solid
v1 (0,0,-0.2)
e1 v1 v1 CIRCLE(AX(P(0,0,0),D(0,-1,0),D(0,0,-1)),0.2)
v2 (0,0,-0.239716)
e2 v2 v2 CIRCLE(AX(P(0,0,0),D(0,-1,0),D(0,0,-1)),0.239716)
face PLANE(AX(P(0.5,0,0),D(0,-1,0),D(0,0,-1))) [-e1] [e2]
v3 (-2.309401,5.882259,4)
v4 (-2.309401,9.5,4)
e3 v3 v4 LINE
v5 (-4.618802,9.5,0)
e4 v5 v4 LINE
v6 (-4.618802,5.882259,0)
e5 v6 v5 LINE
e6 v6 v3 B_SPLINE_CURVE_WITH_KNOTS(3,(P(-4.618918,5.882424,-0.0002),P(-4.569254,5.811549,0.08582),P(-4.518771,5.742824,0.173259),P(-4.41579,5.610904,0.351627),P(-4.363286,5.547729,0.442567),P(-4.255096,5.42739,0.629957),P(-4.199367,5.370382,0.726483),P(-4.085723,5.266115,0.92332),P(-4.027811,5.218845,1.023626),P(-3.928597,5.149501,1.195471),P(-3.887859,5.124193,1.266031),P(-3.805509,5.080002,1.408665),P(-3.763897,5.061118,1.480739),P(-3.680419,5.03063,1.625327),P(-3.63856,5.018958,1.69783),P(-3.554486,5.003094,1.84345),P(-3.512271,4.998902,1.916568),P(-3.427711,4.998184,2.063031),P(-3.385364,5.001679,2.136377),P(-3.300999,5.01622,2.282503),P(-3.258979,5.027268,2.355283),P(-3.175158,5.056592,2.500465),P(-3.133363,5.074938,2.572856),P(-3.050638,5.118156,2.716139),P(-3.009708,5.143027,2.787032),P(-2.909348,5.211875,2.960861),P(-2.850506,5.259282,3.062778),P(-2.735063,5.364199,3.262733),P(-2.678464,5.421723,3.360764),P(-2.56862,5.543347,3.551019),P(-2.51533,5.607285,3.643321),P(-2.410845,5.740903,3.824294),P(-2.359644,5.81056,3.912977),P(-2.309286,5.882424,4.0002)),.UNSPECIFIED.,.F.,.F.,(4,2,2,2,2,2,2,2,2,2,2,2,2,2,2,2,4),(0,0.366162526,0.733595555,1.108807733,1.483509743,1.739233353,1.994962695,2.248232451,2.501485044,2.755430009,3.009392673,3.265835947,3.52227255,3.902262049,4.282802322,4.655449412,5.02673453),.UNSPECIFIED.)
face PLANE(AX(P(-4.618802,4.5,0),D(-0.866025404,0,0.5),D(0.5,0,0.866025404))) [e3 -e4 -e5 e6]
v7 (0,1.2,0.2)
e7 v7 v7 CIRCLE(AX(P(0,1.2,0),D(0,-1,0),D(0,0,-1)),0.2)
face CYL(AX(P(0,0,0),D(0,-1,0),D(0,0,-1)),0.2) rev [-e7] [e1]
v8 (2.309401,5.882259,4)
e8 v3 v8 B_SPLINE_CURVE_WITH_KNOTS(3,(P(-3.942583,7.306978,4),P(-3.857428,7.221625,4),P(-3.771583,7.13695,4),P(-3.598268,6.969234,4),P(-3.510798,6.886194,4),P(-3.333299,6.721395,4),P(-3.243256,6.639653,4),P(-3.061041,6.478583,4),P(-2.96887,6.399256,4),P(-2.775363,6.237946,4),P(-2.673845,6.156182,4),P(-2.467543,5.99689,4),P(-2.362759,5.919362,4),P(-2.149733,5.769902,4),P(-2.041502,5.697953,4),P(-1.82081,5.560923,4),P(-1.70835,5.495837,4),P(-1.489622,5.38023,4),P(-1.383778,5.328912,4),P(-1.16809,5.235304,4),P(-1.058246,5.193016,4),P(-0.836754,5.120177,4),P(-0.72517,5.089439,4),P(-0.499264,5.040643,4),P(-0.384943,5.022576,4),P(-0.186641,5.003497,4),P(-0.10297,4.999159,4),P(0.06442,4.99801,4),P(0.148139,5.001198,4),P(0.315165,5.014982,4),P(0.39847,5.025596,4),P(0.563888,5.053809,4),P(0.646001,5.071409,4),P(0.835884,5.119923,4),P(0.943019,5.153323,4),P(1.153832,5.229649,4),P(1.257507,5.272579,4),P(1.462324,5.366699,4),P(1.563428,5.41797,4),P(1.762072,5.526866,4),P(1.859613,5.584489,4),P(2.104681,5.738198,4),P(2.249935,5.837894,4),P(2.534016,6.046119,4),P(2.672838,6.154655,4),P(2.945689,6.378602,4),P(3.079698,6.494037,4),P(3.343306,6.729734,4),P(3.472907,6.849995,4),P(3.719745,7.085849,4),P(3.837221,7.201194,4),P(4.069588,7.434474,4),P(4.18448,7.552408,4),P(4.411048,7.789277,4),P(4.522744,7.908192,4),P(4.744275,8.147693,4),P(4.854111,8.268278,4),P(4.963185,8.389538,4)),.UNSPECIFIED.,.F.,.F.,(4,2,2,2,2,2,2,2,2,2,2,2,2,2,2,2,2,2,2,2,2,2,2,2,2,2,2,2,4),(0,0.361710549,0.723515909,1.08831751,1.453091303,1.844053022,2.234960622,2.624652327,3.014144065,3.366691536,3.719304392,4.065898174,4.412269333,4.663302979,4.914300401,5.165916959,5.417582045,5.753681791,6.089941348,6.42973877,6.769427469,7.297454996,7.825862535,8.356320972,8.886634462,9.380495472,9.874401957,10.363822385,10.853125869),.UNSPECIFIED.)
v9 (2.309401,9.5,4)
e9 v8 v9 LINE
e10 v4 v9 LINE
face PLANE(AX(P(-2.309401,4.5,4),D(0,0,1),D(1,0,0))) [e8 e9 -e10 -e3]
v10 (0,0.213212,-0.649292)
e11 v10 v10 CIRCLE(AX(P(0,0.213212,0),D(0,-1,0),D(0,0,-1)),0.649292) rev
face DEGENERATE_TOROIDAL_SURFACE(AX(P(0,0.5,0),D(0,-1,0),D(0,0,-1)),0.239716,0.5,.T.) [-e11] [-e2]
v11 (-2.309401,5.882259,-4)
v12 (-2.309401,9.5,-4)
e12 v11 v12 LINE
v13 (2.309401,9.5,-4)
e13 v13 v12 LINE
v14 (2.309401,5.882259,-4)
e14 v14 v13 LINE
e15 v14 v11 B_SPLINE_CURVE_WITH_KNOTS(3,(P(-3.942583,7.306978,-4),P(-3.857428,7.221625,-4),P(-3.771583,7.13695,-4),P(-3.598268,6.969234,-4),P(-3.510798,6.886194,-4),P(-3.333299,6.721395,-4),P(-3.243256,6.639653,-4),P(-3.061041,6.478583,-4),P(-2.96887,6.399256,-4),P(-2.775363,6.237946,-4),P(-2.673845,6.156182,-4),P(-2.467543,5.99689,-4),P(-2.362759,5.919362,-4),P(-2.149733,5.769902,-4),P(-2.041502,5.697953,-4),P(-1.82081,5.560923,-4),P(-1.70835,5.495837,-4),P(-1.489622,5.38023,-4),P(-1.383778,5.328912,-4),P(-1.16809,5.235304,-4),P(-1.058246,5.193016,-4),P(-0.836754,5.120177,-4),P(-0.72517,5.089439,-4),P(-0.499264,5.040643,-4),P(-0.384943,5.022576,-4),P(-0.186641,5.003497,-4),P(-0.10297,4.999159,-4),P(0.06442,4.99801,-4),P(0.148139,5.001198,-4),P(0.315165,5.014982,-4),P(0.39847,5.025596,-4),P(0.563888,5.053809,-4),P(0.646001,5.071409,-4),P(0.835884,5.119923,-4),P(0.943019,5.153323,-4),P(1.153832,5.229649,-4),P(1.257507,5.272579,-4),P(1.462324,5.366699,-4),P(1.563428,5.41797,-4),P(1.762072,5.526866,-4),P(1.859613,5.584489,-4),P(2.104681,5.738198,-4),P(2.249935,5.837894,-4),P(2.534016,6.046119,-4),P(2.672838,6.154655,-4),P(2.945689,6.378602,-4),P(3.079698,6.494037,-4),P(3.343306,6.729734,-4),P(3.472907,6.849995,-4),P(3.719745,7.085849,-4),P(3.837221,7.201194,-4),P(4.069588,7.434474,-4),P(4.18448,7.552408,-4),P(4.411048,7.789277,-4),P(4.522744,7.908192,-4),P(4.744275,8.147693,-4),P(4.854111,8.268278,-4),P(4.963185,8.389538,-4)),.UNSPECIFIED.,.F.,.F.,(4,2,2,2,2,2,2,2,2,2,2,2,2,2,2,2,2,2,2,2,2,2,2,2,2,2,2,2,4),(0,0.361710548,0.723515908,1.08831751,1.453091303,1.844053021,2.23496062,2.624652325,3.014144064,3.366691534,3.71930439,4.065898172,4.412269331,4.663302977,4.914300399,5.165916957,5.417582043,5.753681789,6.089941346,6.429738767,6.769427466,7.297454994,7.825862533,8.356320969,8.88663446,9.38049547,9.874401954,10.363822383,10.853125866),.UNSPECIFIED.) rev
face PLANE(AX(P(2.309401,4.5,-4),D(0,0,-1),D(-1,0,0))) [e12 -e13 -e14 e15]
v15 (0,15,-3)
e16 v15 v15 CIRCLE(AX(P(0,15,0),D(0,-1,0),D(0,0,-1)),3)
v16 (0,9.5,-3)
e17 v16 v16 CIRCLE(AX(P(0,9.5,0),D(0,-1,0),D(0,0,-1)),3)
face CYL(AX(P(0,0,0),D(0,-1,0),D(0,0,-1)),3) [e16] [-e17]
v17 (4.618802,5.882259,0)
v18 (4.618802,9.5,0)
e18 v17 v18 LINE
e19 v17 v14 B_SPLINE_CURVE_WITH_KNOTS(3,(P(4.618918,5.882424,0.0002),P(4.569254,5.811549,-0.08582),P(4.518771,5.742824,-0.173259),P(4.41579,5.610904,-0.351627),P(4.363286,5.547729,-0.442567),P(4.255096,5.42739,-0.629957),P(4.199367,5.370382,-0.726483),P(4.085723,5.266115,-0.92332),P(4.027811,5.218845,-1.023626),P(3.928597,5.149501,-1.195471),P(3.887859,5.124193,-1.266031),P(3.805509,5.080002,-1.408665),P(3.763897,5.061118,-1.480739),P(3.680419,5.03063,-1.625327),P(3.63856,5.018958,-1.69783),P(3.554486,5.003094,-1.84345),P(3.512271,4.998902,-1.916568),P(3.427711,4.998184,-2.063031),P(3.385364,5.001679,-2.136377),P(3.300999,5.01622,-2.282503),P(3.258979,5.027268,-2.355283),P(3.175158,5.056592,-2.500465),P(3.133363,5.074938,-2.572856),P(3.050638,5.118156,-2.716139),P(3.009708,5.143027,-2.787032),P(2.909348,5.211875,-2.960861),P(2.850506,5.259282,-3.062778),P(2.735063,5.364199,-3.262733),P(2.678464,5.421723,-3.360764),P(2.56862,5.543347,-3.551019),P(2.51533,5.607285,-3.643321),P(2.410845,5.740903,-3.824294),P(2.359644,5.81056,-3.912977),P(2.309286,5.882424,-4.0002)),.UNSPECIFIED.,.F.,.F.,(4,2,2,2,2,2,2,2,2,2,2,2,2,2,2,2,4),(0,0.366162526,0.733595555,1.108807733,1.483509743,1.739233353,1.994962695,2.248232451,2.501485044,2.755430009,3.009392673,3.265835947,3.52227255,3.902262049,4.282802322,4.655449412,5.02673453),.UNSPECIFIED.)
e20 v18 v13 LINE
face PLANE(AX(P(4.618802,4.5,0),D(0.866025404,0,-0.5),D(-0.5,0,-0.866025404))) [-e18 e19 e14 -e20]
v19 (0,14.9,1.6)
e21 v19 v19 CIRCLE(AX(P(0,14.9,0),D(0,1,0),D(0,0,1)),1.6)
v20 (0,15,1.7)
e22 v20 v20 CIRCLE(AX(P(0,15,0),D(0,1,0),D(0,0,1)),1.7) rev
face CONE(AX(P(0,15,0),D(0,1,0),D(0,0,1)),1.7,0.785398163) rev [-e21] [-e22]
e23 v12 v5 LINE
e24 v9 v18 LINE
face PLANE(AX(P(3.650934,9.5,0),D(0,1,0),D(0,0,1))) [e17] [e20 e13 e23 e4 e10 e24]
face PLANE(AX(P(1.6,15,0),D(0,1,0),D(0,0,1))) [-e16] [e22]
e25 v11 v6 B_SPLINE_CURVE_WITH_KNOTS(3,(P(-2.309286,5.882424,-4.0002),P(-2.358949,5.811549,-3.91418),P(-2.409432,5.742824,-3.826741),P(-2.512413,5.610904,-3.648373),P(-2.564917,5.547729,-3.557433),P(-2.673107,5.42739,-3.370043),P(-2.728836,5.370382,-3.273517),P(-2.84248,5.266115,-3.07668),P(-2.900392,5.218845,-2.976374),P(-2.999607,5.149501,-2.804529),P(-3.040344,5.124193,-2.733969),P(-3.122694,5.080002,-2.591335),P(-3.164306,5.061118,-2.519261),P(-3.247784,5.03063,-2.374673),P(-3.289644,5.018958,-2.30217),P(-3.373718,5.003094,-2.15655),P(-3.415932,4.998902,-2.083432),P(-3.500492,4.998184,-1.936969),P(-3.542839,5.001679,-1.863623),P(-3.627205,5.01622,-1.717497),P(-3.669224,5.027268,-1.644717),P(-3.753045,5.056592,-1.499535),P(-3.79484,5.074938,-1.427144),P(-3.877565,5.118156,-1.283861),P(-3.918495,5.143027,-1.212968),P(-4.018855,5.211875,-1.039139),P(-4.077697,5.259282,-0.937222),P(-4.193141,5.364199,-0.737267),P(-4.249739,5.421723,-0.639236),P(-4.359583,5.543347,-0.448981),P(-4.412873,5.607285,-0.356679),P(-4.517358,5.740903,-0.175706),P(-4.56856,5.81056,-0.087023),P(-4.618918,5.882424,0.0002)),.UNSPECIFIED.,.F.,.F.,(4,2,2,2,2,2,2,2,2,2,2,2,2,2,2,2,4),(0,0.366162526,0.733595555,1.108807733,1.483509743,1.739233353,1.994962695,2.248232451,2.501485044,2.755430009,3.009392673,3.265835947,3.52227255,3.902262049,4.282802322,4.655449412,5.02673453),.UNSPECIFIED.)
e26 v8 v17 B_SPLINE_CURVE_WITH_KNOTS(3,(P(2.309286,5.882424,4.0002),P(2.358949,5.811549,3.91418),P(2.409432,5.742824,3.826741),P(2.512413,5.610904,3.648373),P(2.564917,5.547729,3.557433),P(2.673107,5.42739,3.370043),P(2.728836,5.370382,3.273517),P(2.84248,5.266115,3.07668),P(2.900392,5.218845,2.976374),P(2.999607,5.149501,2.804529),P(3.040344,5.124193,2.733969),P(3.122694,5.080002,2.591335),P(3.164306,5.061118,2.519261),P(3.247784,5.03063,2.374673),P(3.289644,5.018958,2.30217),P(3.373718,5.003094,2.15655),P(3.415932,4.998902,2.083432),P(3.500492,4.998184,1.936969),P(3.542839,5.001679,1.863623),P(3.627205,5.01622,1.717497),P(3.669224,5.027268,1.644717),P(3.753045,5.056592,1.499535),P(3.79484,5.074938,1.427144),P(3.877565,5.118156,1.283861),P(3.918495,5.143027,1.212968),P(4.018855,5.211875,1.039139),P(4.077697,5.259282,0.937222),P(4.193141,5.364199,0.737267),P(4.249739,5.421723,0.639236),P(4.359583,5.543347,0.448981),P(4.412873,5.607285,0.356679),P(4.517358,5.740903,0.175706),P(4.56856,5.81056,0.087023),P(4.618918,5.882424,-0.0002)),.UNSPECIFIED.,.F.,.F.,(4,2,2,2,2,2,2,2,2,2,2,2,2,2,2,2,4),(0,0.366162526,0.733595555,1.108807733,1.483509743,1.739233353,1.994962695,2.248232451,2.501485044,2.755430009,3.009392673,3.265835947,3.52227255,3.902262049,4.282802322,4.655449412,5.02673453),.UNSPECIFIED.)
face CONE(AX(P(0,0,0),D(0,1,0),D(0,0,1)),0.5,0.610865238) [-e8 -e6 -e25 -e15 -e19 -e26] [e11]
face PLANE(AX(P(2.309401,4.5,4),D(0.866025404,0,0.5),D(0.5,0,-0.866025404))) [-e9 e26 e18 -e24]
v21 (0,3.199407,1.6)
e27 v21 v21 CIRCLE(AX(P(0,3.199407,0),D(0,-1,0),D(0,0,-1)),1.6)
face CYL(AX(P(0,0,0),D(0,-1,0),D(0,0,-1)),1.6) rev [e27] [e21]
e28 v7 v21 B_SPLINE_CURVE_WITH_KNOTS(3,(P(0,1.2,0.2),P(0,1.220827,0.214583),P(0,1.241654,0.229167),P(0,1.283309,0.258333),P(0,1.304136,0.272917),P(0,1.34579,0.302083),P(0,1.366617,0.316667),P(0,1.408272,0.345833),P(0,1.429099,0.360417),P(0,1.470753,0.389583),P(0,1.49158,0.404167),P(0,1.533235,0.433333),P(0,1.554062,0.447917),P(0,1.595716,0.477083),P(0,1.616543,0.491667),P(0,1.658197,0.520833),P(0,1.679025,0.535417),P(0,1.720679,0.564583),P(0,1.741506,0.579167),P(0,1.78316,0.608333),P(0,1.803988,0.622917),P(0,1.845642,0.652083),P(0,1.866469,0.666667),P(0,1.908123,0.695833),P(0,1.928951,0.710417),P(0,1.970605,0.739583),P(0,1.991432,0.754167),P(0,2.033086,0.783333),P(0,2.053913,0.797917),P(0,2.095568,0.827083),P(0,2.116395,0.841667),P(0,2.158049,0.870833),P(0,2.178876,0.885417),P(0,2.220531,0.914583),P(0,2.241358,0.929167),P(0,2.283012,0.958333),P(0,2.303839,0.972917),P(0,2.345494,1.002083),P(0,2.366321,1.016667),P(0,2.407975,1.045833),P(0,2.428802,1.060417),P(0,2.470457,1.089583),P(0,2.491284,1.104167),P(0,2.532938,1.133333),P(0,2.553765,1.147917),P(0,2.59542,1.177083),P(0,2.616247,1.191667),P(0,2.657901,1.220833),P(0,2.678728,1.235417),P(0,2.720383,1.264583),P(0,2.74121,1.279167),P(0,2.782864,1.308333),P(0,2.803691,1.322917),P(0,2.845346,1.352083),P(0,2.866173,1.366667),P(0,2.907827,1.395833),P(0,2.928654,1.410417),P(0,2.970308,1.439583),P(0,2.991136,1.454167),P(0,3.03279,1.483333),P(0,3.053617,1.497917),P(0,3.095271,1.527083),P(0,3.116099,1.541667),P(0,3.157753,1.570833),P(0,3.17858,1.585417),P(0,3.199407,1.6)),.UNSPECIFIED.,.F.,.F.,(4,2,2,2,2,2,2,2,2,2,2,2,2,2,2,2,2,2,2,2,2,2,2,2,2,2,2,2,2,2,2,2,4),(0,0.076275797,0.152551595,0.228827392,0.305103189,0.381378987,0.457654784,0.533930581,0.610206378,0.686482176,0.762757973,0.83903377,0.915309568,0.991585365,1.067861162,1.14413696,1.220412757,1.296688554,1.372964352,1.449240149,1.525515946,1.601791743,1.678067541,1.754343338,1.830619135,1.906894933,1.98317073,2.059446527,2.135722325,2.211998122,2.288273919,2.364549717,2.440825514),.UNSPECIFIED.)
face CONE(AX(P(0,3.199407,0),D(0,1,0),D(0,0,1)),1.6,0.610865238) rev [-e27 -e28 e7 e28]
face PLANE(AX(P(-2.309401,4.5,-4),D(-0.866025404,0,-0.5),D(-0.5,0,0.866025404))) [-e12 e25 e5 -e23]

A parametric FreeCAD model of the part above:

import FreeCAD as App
import Part
import Sketcher
from FreeCAD import Vector
Q = App.Units.Quantity


def edges_at(feature, points):
    """Names of the edges that pass closest to the given points."""
    edges = feature.Shape.Edges
    near = lambda p: min(range(len(edges)), key=lambda i: edges[i].distToShape(Part.Vertex(*p))[0])
    return sorted({f"Edge{near(p) + 1}" for p in points})

doc = App.newDocument("Part")
body = doc.addObject("PartDesign::Body", "Body")

# Sketch on XY plane
sketch1 = body.newObject("Sketcher::SketchObject", "Sketch")
sketch1.AttachmentSupport = (doc.getObject("XY_Plane"), [""])
sketch1.MapMode = "FlatFace"
sketch1.addGeometry(Part.LineSegment(Vector(0.2, 1.2, 0), Vector(0.2, 0, 0)), False)
sketch1.addGeometry(Part.LineSegment(Vector(0.2, 0, 0), Vector(0.5, 0, 0)), False)
sketch1.addGeometry(Part.LineSegment(Vector(0.5, 0, 0), Vector(3.650934, 4.5, 0)), False)
sketch1.addGeometry(Part.LineSegment(Vector(3.650934, 4.5, 0), Vector(3.650934, 9.5, 0)), False)
sketch1.addGeometry(Part.LineSegment(Vector(3.650934, 9.5, 0), Vector(3, 9.5, 0)), False)
sketch1.addGeometry(Part.LineSegment(Vector(3, 9.5, 0), Vector(3, 15, 0)), False)
sketch1.addGeometry(Part.LineSegment(Vector(3, 15, 0), Vector(1.6, 15, 0)), False)
sketch1.addGeometry(Part.LineSegment(Vector(1.6, 15, 0), Vector(1.6, 3.199407, 0)), False)
sketch1.addGeometry(Part.LineSegment(Vector(1.6, 3.199407, 0), Vector(0.2, 1.2, 0)), False)
sketch1.addConstraint(Sketcher.Constraint("Coincident", 0, 2, 1, 1))
sketch1.addConstraint(Sketcher.Constraint("Coincident", 1, 2, 2, 1))
sketch1.addConstraint(Sketcher.Constraint("Coincident", 2, 2, 3, 1))
sketch1.addConstraint(Sketcher.Constraint("Coincident", 3, 2, 4, 1))
sketch1.addConstraint(Sketcher.Constraint("Coincident", 4, 2, 5, 1))
sketch1.addConstraint(Sketcher.Constraint("Coincident", 5, 2, 6, 1))
sketch1.addConstraint(Sketcher.Constraint("Coincident", 6, 2, 7, 1))
sketch1.addConstraint(Sketcher.Constraint("Coincident", 7, 2, 8, 1))
sketch1.addConstraint(Sketcher.Constraint("Coincident", 8, 2, 0, 1))
sketch1.addConstraint(Sketcher.Constraint("Vertical", 0))
sketch1.addConstraint(Sketcher.Constraint("Horizontal", 1))
sketch1.addConstraint(Sketcher.Constraint("Vertical", 3))
sketch1.addConstraint(Sketcher.Constraint("Horizontal", 4))
sketch1.addConstraint(Sketcher.Constraint("Vertical", 5))
sketch1.addConstraint(Sketcher.Constraint("Horizontal", 6))
sketch1.addConstraint(Sketcher.Constraint("Vertical", 7))
sketch1.addConstraint(Sketcher.Constraint("PointOnObject", 0, 2, -1))
sketch1.addConstraint(Sketcher.Constraint("Parallel", 2, 8))
sketch1.addConstraint(Sketcher.Constraint("DistanceY", 3, 1, 3, 2, 5.0))
sketch1.addConstraint(Sketcher.Constraint("Angle", 2, Q("55 deg")))
sketch1.addConstraint(Sketcher.Constraint("DistanceX", 1, 1, 1, 2, 0.3))
sketch1.addConstraint(Sketcher.Constraint("DistanceX", 6, 2, 6, 1, 1.4))
sketch1.addConstraint(Sketcher.Constraint("DistanceY", 0, 2, 0, 1, 1.2))
sketch1.addConstraint(Sketcher.Constraint("DistanceY", 5, 1, 5, 2, 5.5))
sketch1.addConstraint(Sketcher.Constraint("DistanceX", -1, 1, 4, 2, 3.0))
sketch1.addConstraint(Sketcher.Constraint("DistanceY", -1, 1, 5, 2, 15.0))
sketch1.addConstraint(Sketcher.Constraint("DistanceX", -1, 1, 0, 2, 0.2))
revolution = body.newObject("PartDesign::Revolution", "Revolution")
revolution.Profile = sketch1
revolution.ReferenceAxis = (sketch1, ["V_Axis"])
revolution.Angle = 360

# Sketch on XZ plane
sketch2 = body.newObject("Sketcher::SketchObject", "Sketch001")
sketch2.AttachmentSupport = (doc.getObject("XZ_Plane"), [""])
sketch2.MapMode = "FlatFace"
sketch2.AttachmentOffset = App.Placement(Vector(0, 0, -4.5), App.Rotation())
sketch2.addGeometry(Part.LineSegment(Vector(-2.309401, 4, 0), Vector(2.309401, 4, 0)), False)
sketch2.addGeometry(Part.LineSegment(Vector(2.309401, 4, 0), Vector(4.618802, 0, 0)), False)
sketch2.addGeometry(Part.LineSegment(Vector(4.618802, 0, 0), Vector(2.309401, -4, 0)), False)
sketch2.addGeometry(Part.LineSegment(Vector(2.309401, -4, 0), Vector(-2.309401, -4, 0)), False)
sketch2.addGeometry(Part.LineSegment(Vector(-2.309401, -4, 0), Vector(-4.618802, 0, 0)), False)
sketch2.addGeometry(Part.LineSegment(Vector(-4.618802, 0, 0), Vector(-2.309401, 4, 0)), False)
sketch2.addGeometry(Part.Circle(Vector(0, 0, 0), Vector(0, 0, 1), 3.650934), False)
sketch2.addConstraint(Sketcher.Constraint("Coincident", 0, 2, 1, 1))
sketch2.addConstraint(Sketcher.Constraint("Coincident", 1, 2, 2, 1))
sketch2.addConstraint(Sketcher.Constraint("Coincident", 2, 2, 3, 1))
sketch2.addConstraint(Sketcher.Constraint("Coincident", 3, 2, 4, 1))
sketch2.addConstraint(Sketcher.Constraint("Coincident", 4, 2, 5, 1))
sketch2.addConstraint(Sketcher.Constraint("Coincident", 5, 2, 0, 1))
sketch2.addConstraint(Sketcher.Constraint("Horizontal", 0))
sketch2.addConstraint(Sketcher.Constraint("Horizontal", 3))
sketch2.addConstraint(Sketcher.Constraint("Coincident", 6, 3, -1, 1))
sketch2.addConstraint(Sketcher.Constraint("Symmetric", 0, 2, 3, 2, -1, 1))
sketch2.addConstraint(Sketcher.Constraint("Symmetric", 1, 2, 4, 2, -1, 1))
sketch2.addConstraint(Sketcher.Constraint("PointOnObject", 1, 2, -1))
sketch2.addConstraint(Sketcher.Constraint("Parallel", 2, 5))
sketch2.addConstraint(Sketcher.Constraint("Vertical", 0, 2, 2, 2))
sketch2.addConstraint(Sketcher.Constraint("Angle", 1, Q("-60 deg")))
sketch2.addConstraint(Sketcher.Constraint("DistanceY", -1, 1, 0, 2, 4.0))
sketch2.addConstraint(Sketcher.Constraint("Diameter", 6, 7.301868))
sketch2.addConstraint(Sketcher.Constraint("DistanceX", -1, 1, 0, 2, 2.309401))
pad1 = body.newObject("PartDesign::Pad", "Pad")
pad1.Profile = sketch2
pad1.Length = 5
pad1.Reversed = True
doc.recompute()

fillet = body.newObject("PartDesign::Fillet", "Fillet")
fillet.Base = (pad1, edges_at(pad1, [(0, 0, 0.5)]))
fillet.Radius = 0.5
doc.recompute()

chamfer = body.newObject("PartDesign::Chamfer", "Chamfer")
chamfer.Base = (fillet, edges_at(fillet, [(0, 15, 1.6)]))
chamfer.Size = 0.1

# Sketch on XY plane
sketch3 = body.newObject("Sketcher::SketchObject", "Sketch002")
sketch3.AttachmentSupport = (doc.getObject("XY_Plane"), [""])
sketch3.MapMode = "FlatFace"
sketch3.addGeometry(Part.LineSegment(Vector(4.618802, 5.882259, 0), Vector(3.650934, 4.5, 0)), False)
sketch3.addGeometry(Part.LineSegment(Vector(3.650934, 4.5, 0), Vector(4.618802, 4.5, 0)), False)
sketch3.addGeometry(Part.LineSegment(Vector(4.618802, 4.5, 0), Vector(4.618802, 5.882259, 0)), False)
sketch3.addConstraint(Sketcher.Constraint("Coincident", 0, 2, 1, 1))
sketch3.addConstraint(Sketcher.Constraint("Coincident", 1, 2, 2, 1))
sketch3.addConstraint(Sketcher.Constraint("Coincident", 2, 2, 0, 1))
sketch3.addConstraint(Sketcher.Constraint("Horizontal", 1))
sketch3.addConstraint(Sketcher.Constraint("Vertical", 2))
sketch3.addConstraint(Sketcher.Constraint("Angle", 0, Q("-125 deg")))
sketch3.addConstraint(Sketcher.Constraint("DistanceY", -1, 1, 0, 2, 4.5))
sketch3.addConstraint(Sketcher.Constraint("DistanceX", 1, 1, 1, 2, 0.967868))
sketch3.addConstraint(Sketcher.Constraint("DistanceX", -1, 1, 0, 2, 3.650934))
groove = body.newObject("PartDesign::Groove", "Groove")
groove.Profile = sketch3
groove.ReferenceAxis = (sketch3, ["V_Axis"])
groove.Angle = 360

doc.recompute()
